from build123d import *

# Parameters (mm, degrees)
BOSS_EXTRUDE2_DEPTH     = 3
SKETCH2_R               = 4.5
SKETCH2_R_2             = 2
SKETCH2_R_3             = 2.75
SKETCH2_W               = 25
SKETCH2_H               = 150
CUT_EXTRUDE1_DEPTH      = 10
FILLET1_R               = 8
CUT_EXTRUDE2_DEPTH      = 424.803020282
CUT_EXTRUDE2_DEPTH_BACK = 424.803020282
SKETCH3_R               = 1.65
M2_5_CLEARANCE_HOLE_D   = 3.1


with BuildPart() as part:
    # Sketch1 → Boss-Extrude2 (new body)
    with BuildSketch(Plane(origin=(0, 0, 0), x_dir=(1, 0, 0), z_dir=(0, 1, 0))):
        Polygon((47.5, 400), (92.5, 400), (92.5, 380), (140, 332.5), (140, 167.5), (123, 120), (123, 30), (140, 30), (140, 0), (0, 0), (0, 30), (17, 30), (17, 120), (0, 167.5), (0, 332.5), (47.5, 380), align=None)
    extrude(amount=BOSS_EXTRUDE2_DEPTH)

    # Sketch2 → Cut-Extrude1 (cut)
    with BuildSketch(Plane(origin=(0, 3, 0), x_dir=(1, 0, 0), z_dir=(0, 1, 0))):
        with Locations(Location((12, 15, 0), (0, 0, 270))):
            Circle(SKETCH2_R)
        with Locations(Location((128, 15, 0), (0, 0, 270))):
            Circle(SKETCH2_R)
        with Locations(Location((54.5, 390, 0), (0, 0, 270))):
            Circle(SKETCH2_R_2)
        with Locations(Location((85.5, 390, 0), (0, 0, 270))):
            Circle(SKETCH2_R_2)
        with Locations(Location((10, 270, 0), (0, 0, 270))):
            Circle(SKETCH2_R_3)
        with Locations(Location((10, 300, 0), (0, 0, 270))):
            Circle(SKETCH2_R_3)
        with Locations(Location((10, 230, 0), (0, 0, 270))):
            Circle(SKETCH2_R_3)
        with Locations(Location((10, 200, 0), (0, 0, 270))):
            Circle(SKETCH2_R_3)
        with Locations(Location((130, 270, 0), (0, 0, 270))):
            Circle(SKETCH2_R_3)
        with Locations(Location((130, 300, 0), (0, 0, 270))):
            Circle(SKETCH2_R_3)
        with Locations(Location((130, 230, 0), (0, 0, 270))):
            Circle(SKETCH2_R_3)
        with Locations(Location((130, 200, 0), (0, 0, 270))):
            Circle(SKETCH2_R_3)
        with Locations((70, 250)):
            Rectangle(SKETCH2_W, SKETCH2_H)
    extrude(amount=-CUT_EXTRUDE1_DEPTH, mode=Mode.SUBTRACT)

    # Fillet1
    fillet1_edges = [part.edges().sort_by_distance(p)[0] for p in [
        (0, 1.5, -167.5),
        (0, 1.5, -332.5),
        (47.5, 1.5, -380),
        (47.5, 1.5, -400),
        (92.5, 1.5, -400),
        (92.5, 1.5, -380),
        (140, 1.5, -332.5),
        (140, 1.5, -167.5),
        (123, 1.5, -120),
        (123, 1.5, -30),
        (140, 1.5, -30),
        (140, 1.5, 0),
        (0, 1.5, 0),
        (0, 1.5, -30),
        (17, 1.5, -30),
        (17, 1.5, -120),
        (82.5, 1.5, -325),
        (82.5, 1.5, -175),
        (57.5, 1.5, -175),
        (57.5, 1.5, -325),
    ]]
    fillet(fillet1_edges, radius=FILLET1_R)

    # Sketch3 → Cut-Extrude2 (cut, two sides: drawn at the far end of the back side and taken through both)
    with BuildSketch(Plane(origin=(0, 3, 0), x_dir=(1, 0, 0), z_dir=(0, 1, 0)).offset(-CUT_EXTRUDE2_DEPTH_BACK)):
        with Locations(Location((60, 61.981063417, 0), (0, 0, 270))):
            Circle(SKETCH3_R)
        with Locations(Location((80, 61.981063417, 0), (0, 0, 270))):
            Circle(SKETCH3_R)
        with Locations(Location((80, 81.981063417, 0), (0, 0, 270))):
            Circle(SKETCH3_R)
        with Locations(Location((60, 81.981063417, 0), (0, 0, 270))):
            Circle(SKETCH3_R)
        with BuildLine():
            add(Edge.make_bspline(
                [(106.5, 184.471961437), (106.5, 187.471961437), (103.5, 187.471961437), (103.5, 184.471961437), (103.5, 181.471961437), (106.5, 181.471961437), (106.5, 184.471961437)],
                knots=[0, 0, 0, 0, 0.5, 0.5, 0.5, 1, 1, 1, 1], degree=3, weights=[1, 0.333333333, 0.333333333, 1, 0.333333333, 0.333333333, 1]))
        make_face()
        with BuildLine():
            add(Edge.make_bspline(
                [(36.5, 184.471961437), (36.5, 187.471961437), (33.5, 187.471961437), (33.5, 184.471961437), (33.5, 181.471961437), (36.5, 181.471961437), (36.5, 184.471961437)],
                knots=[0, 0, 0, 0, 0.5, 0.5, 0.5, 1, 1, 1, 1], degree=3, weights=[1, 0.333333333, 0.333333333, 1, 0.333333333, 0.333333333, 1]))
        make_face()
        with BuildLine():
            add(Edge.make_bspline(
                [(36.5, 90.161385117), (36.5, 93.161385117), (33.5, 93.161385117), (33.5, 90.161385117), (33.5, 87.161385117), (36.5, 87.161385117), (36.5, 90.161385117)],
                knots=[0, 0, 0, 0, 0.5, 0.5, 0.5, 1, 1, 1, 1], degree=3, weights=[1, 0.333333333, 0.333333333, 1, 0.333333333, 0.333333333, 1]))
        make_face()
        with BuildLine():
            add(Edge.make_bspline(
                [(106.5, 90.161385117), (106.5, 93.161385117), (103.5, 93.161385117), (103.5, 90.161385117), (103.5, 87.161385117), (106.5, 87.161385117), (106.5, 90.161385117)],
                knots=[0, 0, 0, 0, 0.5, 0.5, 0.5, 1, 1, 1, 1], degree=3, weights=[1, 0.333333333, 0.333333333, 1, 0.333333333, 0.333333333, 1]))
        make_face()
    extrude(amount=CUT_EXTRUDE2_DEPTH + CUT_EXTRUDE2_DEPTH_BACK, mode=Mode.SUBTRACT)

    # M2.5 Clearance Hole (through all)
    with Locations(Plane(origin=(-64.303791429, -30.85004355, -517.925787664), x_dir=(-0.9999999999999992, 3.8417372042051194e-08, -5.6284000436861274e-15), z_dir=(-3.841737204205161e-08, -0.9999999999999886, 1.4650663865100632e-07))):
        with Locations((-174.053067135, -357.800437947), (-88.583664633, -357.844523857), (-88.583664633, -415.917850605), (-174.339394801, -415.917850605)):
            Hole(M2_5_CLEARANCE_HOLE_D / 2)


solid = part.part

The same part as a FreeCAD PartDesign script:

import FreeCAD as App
import Part
import Sketcher

V = App.Vector
Q = App.Units.Quantity


def edges_at(feature, points):
    """Names of the edges that pass closest to the given points."""
    edges = feature.Shape.Edges
    near = lambda p: min(range(len(edges)), key=lambda i: edges[i].distToShape(Part.Vertex(*p))[0])
    return sorted({f"Edge{near(p) + 1}" for p in points})


def add_polygon(sketch, points):
    """Adds a closed chain of lines whose ends are joined by coincident constraints."""
    first, n = sketch.GeometryCount, len(points)
    for a, b in zip(points, points[1:] + points[:1]):
        sketch.addGeometry(Part.LineSegment(App.Vector(*a, 0), App.Vector(*b, 0)), False)
    for i in range(n):
        sketch.addConstraint(Sketcher.Constraint("Coincident", first + i, 2, first + (i + 1) % n, 1))

doc = App.newDocument("Part")
body = doc.addObject("PartDesign::Body", "Body")

sketch1 = body.newObject("Sketcher::SketchObject", "Sketch")
sketch1.AttachmentSupport = (doc.getObject("XZ_Plane"), [""])
sketch1.MapMode = "FlatFace"
add_polygon(sketch1, [(92.5, -400), (47.5, -400), (47.5, -380), (0, -332.5), (0, -167.5), (17, -120), (17, -30), (0, -30), (0, 0), (140, 0), (140, -30), (123, -30), (123, -120), (140, -167.5), (140, -332.5), (92.5, -380)])
sketch1.addConstraint(Sketcher.Constraint("Horizontal", 0))
sketch1.addConstraint(Sketcher.Constraint("Vertical", 1))
sketch1.addConstraint(Sketcher.Constraint("Vertical", 3))
sketch1.addConstraint(Sketcher.Constraint("Vertical", 5))
sketch1.addConstraint(Sketcher.Constraint("Horizontal", 6))
sketch1.addConstraint(Sketcher.Constraint("Vertical", 7))
sketch1.addConstraint(Sketcher.Constraint("Horizontal", 8))
sketch1.addConstraint(Sketcher.Constraint("Vertical", 9))
sketch1.addConstraint(Sketcher.Constraint("Horizontal", 10))
sketch1.addConstraint(Sketcher.Constraint("Vertical", 11))
sketch1.addConstraint(Sketcher.Constraint("Vertical", 13))
sketch1.addConstraint(Sketcher.Constraint("Vertical", 15))
sketch1.addConstraint(Sketcher.Constraint("Coincident", 7, 2, -1, 1))
sketch1.addConstraint(Sketcher.Constraint("PointOnObject", 2, 2, -2))
sketch1.addConstraint(Sketcher.Constraint("Perpendicular", 2, 14))
sketch1.addConstraint(Sketcher.Constraint("Horizontal", 6, 2, 9, 2))
sketch1.addConstraint(Sketcher.Constraint("Horizontal", 4, 2, 11, 2))
sketch1.addConstraint(Sketcher.Constraint("Horizontal", 3, 2, 12, 2))
sketch1.addConstraint(Sketcher.Constraint("Horizontal", 2, 2, 13, 2))
sketch1.addConstraint(Sketcher.Constraint("Horizontal", 1, 2, 14, 2))
sketch1.addConstraint(Sketcher.Constraint("Vertical", 9, 2, 12, 2))
sketch1.addConstraint(Sketcher.Constraint("Equal", 6, 10))
sketch1.addConstraint(Sketcher.Constraint("Equal", 2, 14))
sketch1.addConstraint(Sketcher.Constraint("DistanceX", 0, 2, 0, 1, Q("45 mm")))
sketch1.addConstraint(Sketcher.Constraint("DistanceX", 6, 2, 6, 1, Q("17 mm")))
sketch1.addConstraint(Sketcher.Constraint("DistanceX", 8, 1, 8, 2, Q("140 mm")))
sketch1.addConstraint(Sketcher.Constraint("DistanceY", 1, 1, 1, 2, Q("20 mm")))
sketch1.addConstraint(Sketcher.Constraint("DistanceY", 3, 1, 3, 2, Q("165 mm")))
sketch1.addConstraint(Sketcher.Constraint("DistanceY", 5, 1, 5, 2, Q("90 mm")))
sketch1.addConstraint(Sketcher.Constraint("DistanceY", 7, 1, 7, 2, Q("30 mm")))
sketch1.addConstraint(Sketcher.Constraint("DistanceY", 0, 2, -1, 1, Q("400 mm")))
pad1 = body.newObject("PartDesign::Pad", "Pad")
pad1.Profile = sketch1
pad1.Length = 3
pad1.Reversed = True

sketch2 = body.newObject("Sketcher::SketchObject", "Sketch001")
sketch2.AttachmentSupport = (doc.getObject("XZ_Plane"), [""])
sketch2.MapMode = "FlatFace"
sketch2.AttachmentOffset = App.Placement(V(0, 0, -3), App.Rotation())
sketch2.addGeometry(Part.Circle(V(12, -15, 0), V(0, 0, 1), 4.5), False)
sketch2.addGeometry(Part.Circle(V(128, -15, 0), V(0, 0, 1), 4.5), False)
sketch2.addGeometry(Part.Circle(V(54.5, -390, 0), V(0, 0, 1), 2), False)
sketch2.addGeometry(Part.Circle(V(85.5, -390, 0), V(0, 0, 1), 2), False)
sketch2.addGeometry(Part.Circle(V(10, -270, 0), V(0, 0, 1), 2.75), False)
sketch2.addGeometry(Part.Circle(V(10, -300, 0), V(0, 0, 1), 2.75), False)
sketch2.addGeometry(Part.Circle(V(10, -230, 0), V(0, 0, 1), 2.75), False)
sketch2.addGeometry(Part.Circle(V(10, -200, 0), V(0, 0, 1), 2.75), False)
sketch2.addGeometry(Part.Circle(V(130, -270, 0), V(0, 0, 1), 2.75), False)
sketch2.addGeometry(Part.Circle(V(130, -300, 0), V(0, 0, 1), 2.75), False)
sketch2.addGeometry(Part.Circle(V(130, -230, 0), V(0, 0, 1), 2.75), False)
sketch2.addGeometry(Part.Circle(V(130, -200, 0), V(0, 0, 1), 2.75), False)
add_polygon(sketch2, [(57.5, -325), (57.5, -175), (82.5, -175), (82.5, -325)])
sketch2.addConstraint(Sketcher.Constraint("Vertical", 12))
sketch2.addConstraint(Sketcher.Constraint("Horizontal", 13))
sketch2.addConstraint(Sketcher.Constraint("Vertical", 14))
sketch2.addConstraint(Sketcher.Constraint("Horizontal", 15))
sketch2.addConstraint(Sketcher.Constraint("Equal", 0, 1))
sketch2.addConstraint(Sketcher.Constraint("Equal", 2, 3))
sketch2.addConstraint(Sketcher.Constraint("Equal", 4, 5))
sketch2.addConstraint(Sketcher.Constraint("Equal", 5, 6))
sketch2.addConstraint(Sketcher.Constraint("Equal", 6, 7))
sketch2.addConstraint(Sketcher.Constraint("Equal", 7, 8))
sketch2.addConstraint(Sketcher.Constraint("Equal", 8, 9))
sketch2.addConstraint(Sketcher.Constraint("Equal", 9, 10))
sketch2.addConstraint(Sketcher.Constraint("Equal", 10, 11))
sketch2.addConstraint(Sketcher.Constraint("Horizontal", 0, 3, 1, 3))
sketch2.addConstraint(Sketcher.Constraint("Horizontal", 2, 3, 3, 3))
sketch2.addConstraint(Sketcher.Constraint("Horizontal", 4, 3, 8, 3))
sketch2.addConstraint(Sketcher.Constraint("Horizontal", 5, 3, 9, 3))
sketch2.addConstraint(Sketcher.Constraint("Horizontal", 6, 3, 10, 3))
sketch2.addConstraint(Sketcher.Constraint("Horizontal", 7, 3, 11, 3))
sketch2.addConstraint(Sketcher.Constraint("Vertical", 4, 3, 5, 3))
sketch2.addConstraint(Sketcher.Constraint("Vertical", 5, 3, 6, 3))
sketch2.addConstraint(Sketcher.Constraint("Vertical", 6, 3, 7, 3))
sketch2.addConstraint(Sketcher.Constraint("Vertical", 8, 3, 9, 3))
sketch2.addConstraint(Sketcher.Constraint("Vertical", 9, 3, 10, 3))
sketch2.addConstraint(Sketcher.Constraint("Vertical", 10, 3, 11, 3))
sketch2.addConstraint(Sketcher.Constraint("Diameter", 0, Q("9 mm")))
sketch2.addConstraint(Sketcher.Constraint("Diameter", 2, Q("4 mm")))
sketch2.addConstraint(Sketcher.Constraint("Diameter", 4, Q("5.5 mm")))
sketch2.addConstraint(Sketcher.Constraint("DistanceX", 13, 1, 13, 2, Q("25 mm")))
sketch2.addConstraint(Sketcher.Constraint("DistanceY", 12, 1, 12, 2, Q("150 mm")))
sketch2.addConstraint(Sketcher.Constraint("DistanceX", -1, 1, 0, 3, Q("12 mm")))
sketch2.addConstraint(Sketcher.Constraint("DistanceY", 0, 3, -1, 1, Q("15 mm")))
sketch2.addConstraint(Sketcher.Constraint("DistanceX", -1, 1, 1, 3, Q("128 mm")))
sketch2.addConstraint(Sketcher.Constraint("DistanceY", 2, 3, -1, 1, Q("390 mm")))
sketch2.addConstraint(Sketcher.Constraint("DistanceX", -1, 1, 4, 3, Q("10 mm")))
sketch2.addConstraint(Sketcher.Constraint("DistanceY", 4, 3, -1, 1, Q("270 mm")))
sketch2.addConstraint(Sketcher.Constraint("DistanceY", 5, 3, -1, 1, Q("300 mm")))
sketch2.addConstraint(Sketcher.Constraint("DistanceY", 6, 3, -1, 1, Q("230 mm")))
sketch2.addConstraint(Sketcher.Constraint("DistanceY", 7, 3, -1, 1, Q("200 mm")))
sketch2.addConstraint(Sketcher.Constraint("DistanceX", -1, 1, 8, 3, Q("130 mm")))
sketch2.addConstraint(Sketcher.Constraint("DistanceY", 12, 2, -1, 1, Q("175 mm")))
sketch2.addConstraint(Sketcher.Constraint("DistanceX", 2, 3, 3, 3, Q("31 mm")))
sketch2.addConstraint(Sketcher.Constraint("DistanceX", 14, 2, 3, 3, Q("3 mm")))
sketch2.addConstraint(Sketcher.Constraint("DistanceX", -1, 1, 2, 3, Q("54.5 mm")))
pocket1 = body.newObject("PartDesign::Pocket", "Pocket")
pocket1.Profile = sketch2
pocket1.Length = 10
pocket1.Reversed = True
doc.recompute()

fillet = body.newObject("PartDesign::Fillet", "Fillet")
fillet.Base = (pocket1, edges_at(pocket1, [
    (0, 1.5, -167.5),
    (0, 1.5, -332.5),
    (47.5, 1.5, -380),
    (47.5, 1.5, -400),
    (92.5, 1.5, -400),
    (92.5, 1.5, -380),
    (140, 1.5, -332.5),
    (140, 1.5, -167.5),
    (123, 1.5, -120),
    (123, 1.5, -30),
    (140, 1.5, -30),
    (140, 1.5, 0),
    (0, 1.5, 0),
    (0, 1.5, -30),
    (17, 1.5, -30),
    (17, 1.5, -120),
    (82.5, 1.5, -325),
    (82.5, 1.5, -175),
    (57.5, 1.5, -175),
    (57.5, 1.5, -325),
]))
fillet.Radius = 8

sketch3 = body.newObject("Sketcher::SketchObject", "Sketch002")
sketch3.AttachmentSupport = (doc.getObject("XZ_Plane"), [""])
sketch3.MapMode = "FlatFace"
sketch3.AttachmentOffset = App.Placement(V(0, 0, -3), App.Rotation())
sketch3.addGeometry(Part.Circle(V(60, -61.981063, 0), V(0, 0, 1), 1.65), False)
sketch3.addGeometry(Part.Circle(V(80, -61.981063, 0), V(0, 0, 1), 1.65), False)
sketch3.addGeometry(Part.Circle(V(80, -81.981063, 0), V(0, 0, 1), 1.65), False)
sketch3.addGeometry(Part.Circle(V(60, -81.981063, 0), V(0, 0, 1), 1.65), False)
sketch3.addGeometry(Part.BSplineCurve([V(106.5, -184.471961, 0), V(106.5, -187.471961, 0), V(103.5, -187.471961, 0), V(103.5, -184.471961, 0), V(103.5, -181.471961, 0), V(106.5, -181.471961, 0), V(106.5, -184.471961, 0)], [4, 3, 4], [0, 0.5, 1], False, 3, [1, 0.333333333, 0.333333333, 1, 0.333333333, 0.333333333, 1], False), False)
sketch3.addGeometry(Part.BSplineCurve([V(36.5, -184.471961, 0), V(36.5, -187.471961, 0), V(33.5, -187.471961, 0), V(33.5, -184.471961, 0), V(33.5, -181.471961, 0), V(36.5, -181.471961, 0), V(36.5, -184.471961, 0)], [4, 3, 4], [0, 0.5, 1], False, 3, [1, 0.333333333, 0.333333333, 1, 0.333333333, 0.333333333, 1], False), False)
sketch3.addGeometry(Part.BSplineCurve([V(36.5, -90.161385, 0), V(36.5, -93.161385, 0), V(33.5, -93.161385, 0), V(33.5, -90.161385, 0), V(33.5, -87.161385, 0), V(36.5, -87.161385, 0), V(36.5, -90.161385, 0)], [4, 3, 4], [0, 0.5, 1], False, 3, [1, 0.333333333, 0.333333333, 1, 0.333333333, 0.333333333, 1], False), False)
sketch3.addGeometry(Part.BSplineCurve([V(106.5, -90.161385, 0), V(106.5, -93.161385, 0), V(103.5, -93.161385, 0), V(103.5, -90.161385, 0), V(103.5, -87.161385, 0), V(106.5, -87.161385, 0), V(106.5, -90.161385, 0)], [4, 3, 4], [0, 0.5, 1], False, 3, [1, 0.333333333, 0.333333333, 1, 0.333333333, 0.333333333, 1], False), False)
sketch3.addConstraint(Sketcher.Constraint("Block", 4))
sketch3.addConstraint(Sketcher.Constraint("Block", 5))
sketch3.addConstraint(Sketcher.Constraint("Block", 6))
sketch3.addConstraint(Sketcher.Constraint("Block", 7))
sketch3.addConstraint(Sketcher.Constraint("Equal", 0, 1))
sketch3.addConstraint(Sketcher.Constraint("Equal", 1, 2))
sketch3.addConstraint(Sketcher.Constraint("Equal", 2, 3))
sketch3.addConstraint(Sketcher.Constraint("Horizontal", 0, 3, 1, 3))
sketch3.addConstraint(Sketcher.Constraint("Horizontal", 2, 3, 3, 3))
sketch3.addConstraint(Sketcher.Constraint("Vertical", 1, 3, 2, 3))
sketch3.addConstraint(Sketcher.Constraint("Vertical", 0, 3, 3, 3))
sketch3.addConstraint(Sketcher.Constraint("Diameter", 0, Q("3.3 mm")))
sketch3.addConstraint(Sketcher.Constraint("DistanceX", -1, 1, 0, 3, Q("60 mm")))
sketch3.addConstraint(Sketcher.Constraint("DistanceX", -1, 1, 1, 3, Q("80 mm")))
sketch3.addConstraint(Sketcher.Constraint("DistanceY", 2, 3, 1, 3, Q("20 mm")))
sketch3.addConstraint(Sketcher.Constraint("DistanceY", 0, 3, -1, 1, Q("61.981063 mm")))
pocket2 = body.newObject("PartDesign::Pocket", "Pocket001")
pocket2.Profile = sketch3
pocket2.Type = "ThroughAll"
pocket2.Midplane = True

sketch4 = body.newObject("Sketcher::SketchObject", "Sketch003")
sketch4.AttachmentSupport = (doc.getObject("XZ_Plane"), [""])
sketch4.MapMode = "FlatFace"
sketch4.AttachmentOffset = App.Placement(V(0, 0, 30.84997), App.Rotation())
sketch4.addGeometry(Part.Circle(V(109.749276, -160.12535, 0), V(0, 0, 1), 1.55), False)
sketch4.addGeometry(Part.Circle(V(24.279873, -160.081264, 0), V(0, 0, 1), 1.55), False)
sketch4.addGeometry(Part.Circle(V(24.279873, -102.007937, 0), V(0, 0, 1), 1.55), False)
sketch4.addGeometry(Part.Circle(V(110.035603, -102.007937, 0), V(0, 0, 1), 1.55), False)
sketch4.addConstraint(Sketcher.Constraint("Equal", 0, 1))
sketch4.addConstraint(Sketcher.Constraint("Equal", 1, 2))
sketch4.addConstraint(Sketcher.Constraint("Equal", 2, 3))
sketch4.addConstraint(Sketcher.Constraint("Horizontal", 2, 3, 3, 3))
sketch4.addConstraint(Sketcher.Constraint("Vertical", 1, 3, 2, 3))
sketch4.addConstraint(Sketcher.Constraint("Diameter", 0, Q("3.1 mm")))
sketch4.addConstraint(Sketcher.Constraint("DistanceY", 0, 3, -1, 1, Q("160.12535 mm")))
sketch4.addConstraint(Sketcher.Constraint("DistanceX", 2, 3, 3, 3, Q("85.75573 mm")))
sketch4.addConstraint(Sketcher.Constraint("DistanceX", -1, 1, 0, 3, Q("109.749276 mm")))
sketch4.addConstraint(Sketcher.Constraint("DistanceX", -1, 1, 1, 3, Q("24.279873 mm")))
sketch4.addConstraint(Sketcher.Constraint("DistanceY", 1, 3, -1, 1, Q("160.081264 mm")))
sketch4.addConstraint(Sketcher.Constraint("DistanceY", 2, 3, -1, 1, Q("102.007937 mm")))
doc.recompute()
hole = body.newObject("PartDesign::Hole", "Hole")
hole.Profile = sketch4
hole.ThreadType = "None"
hole.Diameter = 3.1
hole.DepthType = "ThroughAll"

doc.recompute()
